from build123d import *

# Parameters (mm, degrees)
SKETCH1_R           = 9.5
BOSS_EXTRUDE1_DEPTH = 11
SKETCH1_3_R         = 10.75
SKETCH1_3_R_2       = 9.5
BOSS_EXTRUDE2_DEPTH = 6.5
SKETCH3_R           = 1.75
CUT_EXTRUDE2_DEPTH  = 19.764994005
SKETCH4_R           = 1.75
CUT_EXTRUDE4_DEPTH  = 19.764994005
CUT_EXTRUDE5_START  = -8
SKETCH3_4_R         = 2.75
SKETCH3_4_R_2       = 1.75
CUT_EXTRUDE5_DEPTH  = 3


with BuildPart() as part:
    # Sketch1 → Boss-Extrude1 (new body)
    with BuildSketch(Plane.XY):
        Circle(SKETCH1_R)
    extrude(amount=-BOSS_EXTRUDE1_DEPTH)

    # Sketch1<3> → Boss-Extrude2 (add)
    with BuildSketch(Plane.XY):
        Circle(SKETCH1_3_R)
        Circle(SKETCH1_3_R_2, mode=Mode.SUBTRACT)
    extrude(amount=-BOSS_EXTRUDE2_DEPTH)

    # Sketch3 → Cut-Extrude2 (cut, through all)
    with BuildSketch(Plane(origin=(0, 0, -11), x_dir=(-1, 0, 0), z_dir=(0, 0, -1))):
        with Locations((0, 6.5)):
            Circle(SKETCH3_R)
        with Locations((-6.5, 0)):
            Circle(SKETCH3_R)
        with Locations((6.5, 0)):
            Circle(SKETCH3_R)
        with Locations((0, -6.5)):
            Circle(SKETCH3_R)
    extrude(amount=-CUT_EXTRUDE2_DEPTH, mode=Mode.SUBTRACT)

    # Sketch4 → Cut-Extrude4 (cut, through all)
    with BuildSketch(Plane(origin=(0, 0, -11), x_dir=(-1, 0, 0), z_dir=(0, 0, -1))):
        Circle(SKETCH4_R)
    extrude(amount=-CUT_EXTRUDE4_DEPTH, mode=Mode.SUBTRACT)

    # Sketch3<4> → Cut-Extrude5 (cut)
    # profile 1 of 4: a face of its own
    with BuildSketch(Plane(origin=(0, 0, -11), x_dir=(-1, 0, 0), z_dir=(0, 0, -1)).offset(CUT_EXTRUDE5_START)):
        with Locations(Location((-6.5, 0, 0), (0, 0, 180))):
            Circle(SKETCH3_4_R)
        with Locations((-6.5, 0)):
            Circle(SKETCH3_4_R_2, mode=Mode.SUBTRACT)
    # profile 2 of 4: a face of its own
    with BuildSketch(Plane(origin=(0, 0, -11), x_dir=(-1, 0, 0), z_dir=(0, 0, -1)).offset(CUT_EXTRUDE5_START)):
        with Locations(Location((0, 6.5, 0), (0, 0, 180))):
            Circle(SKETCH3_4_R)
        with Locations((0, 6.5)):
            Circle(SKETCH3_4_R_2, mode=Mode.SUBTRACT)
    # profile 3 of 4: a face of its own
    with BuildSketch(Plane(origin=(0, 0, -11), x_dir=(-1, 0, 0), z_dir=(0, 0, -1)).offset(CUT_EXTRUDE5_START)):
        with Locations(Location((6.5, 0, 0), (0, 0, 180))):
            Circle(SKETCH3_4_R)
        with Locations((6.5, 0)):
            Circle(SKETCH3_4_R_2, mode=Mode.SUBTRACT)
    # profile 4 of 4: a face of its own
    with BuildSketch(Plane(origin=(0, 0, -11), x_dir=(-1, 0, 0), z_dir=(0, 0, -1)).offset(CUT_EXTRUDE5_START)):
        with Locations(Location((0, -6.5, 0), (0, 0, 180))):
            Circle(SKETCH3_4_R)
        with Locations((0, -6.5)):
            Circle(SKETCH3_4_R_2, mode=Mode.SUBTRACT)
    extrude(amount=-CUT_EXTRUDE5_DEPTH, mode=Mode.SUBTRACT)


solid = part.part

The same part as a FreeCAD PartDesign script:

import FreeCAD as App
import Part
import Sketcher
from FreeCAD import Vector
Q = App.Units.Quantity

doc = App.newDocument("Part")
params = doc.addObject("Spreadsheet::Sheet", "Params")
for row, (alias, value) in enumerate([
    ("sketch1_diameter", "19 mm"),
    ("pad1_length", "11 mm"),
    ("sketch2_diameter", "19 mm"),
    ("sketch2_diameter2", "21.5 mm"),
    ("pad2_length", "6.5 mm"),
    ("sketch3_diameter", "3.5 mm"),
    ("sketch4_diameter", "3.5 mm"),
    ("sketch5_diameter", "5.5 mm"),
    ("sketch5_diameter2", "3.5 mm"),
    ("pocket3_length", "3 mm"),
], start=1):
    params.set(f"A{row}", alias)
    params.set(f"B{row}", "=" + value)
    params.setAlias(f"B{row}", alias)

body = doc.addObject("PartDesign::Body", "Body")

sketch1 = body.newObject("Sketcher::SketchObject", "Sketch")
sketch1.AttachmentSupport = (doc.getObject("XY_Plane"), [""])
sketch1.MapMode = "FlatFace"
sketch1.addGeometry(Part.Circle(Vector(0, 0, 0), Vector(0, 0, 1), 10), False)
sketch1.addConstraint([
    Sketcher.Constraint("Coincident", 0, 3, -1, 1),
    Sketcher.Constraint("Diameter", 0, Q("19 mm")),
])
sketch1.setExpression("Constraints[1]", "Params.sketch1_diameter")
pad1 = body.newObject("PartDesign::Pad", "Pad")
pad1.Profile = sketch1
pad1.setExpression("Length", "Params.pad1_length")
pad1.Reversed = True

sketch2 = body.newObject("Sketcher::SketchObject", "Sketch001")
sketch2.AttachmentSupport = (doc.getObject("XY_Plane"), [""])
sketch2.MapMode = "FlatFace"
sketch2.addGeometry([
    Part.Circle(Vector(0, 0, 0), Vector(0, 0, 1), 11),
    Part.Circle(Vector(0, 0, 0), Vector(0, 0, 1), 10),
], False)
sketch2.addConstraint([
    Sketcher.Constraint("Coincident", 0, 3, -1, 1),
    Sketcher.Constraint("Coincident", 1, 3, -1, 1),
    Sketcher.Constraint("Diameter", 1, Q("19 mm")),
    Sketcher.Constraint("Diameter", 0, Q("21.5 mm")),
])
sketch2.setExpression("Constraints[2]", "Params.sketch2_diameter")
sketch2.setExpression("Constraints[3]", "Params.sketch2_diameter2")
pad2 = body.newObject("PartDesign::Pad", "Pad001")
pad2.Profile = sketch2
pad2.setExpression("Length", "Params.pad2_length")
pad2.Reversed = True

sketch3 = body.newObject("Sketcher::SketchObject", "Sketch002")
sketch3.AttachmentSupport = (doc.getObject("XY_Plane"), [""])
sketch3.MapMode = "FlatFace"
sketch3.AttachmentOffset = App.Placement(Vector(0, 0, -11), App.Rotation())
sketch3.addGeometry([
    Part.Circle(Vector(0, 6.5, 0), Vector(0, 0, 1), 1.8),
    Part.Circle(Vector(6.5, 0, 0), Vector(0, 0, 1), 1.8),
    Part.Circle(Vector(-6.5, 0, 0), Vector(0, 0, 1), 1.8),
    Part.Circle(Vector(0, -6.5, 0), Vector(0, 0, 1), 1.8),
], False)
sketch3.addConstraint([
    Sketcher.Constraint("Equal", 0, 1),
    Sketcher.Constraint("Equal", 1, 2),
    Sketcher.Constraint("Equal", 2, 3),
    Sketcher.Constraint("Symmetric", 1, 3, 2, 3, -1, 1),
    Sketcher.Constraint("Symmetric", 0, 3, 3, 3, -1, 1),
    Sketcher.Constraint("PointOnObject", 0, 3, -2),
    Sketcher.Constraint("PointOnObject", 1, 3, -1),
    Sketcher.Constraint("Diameter", 0, Q("3.5 mm")),
    Sketcher.Constraint("DistanceX", 2, 3, 1, 3, Q("13 mm")),
    Sketcher.Constraint("DistanceY", 3, 3, 0, 3, Q("13 mm")),
])
sketch3.setExpression("Constraints[7]", "Params.sketch3_diameter")
pocket1 = body.newObject("PartDesign::Pocket", "Pocket")
pocket1.Profile = sketch3
pocket1.Type = "ThroughAll"
pocket1.Reversed = True

sketch4 = body.newObject("Sketcher::SketchObject", "Sketch003")
sketch4.AttachmentSupport = (doc.getObject("XY_Plane"), [""])
sketch4.MapMode = "FlatFace"
sketch4.AttachmentOffset = App.Placement(Vector(0, 0, -11), App.Rotation())
sketch4.addGeometry(Part.Circle(Vector(0, 0, 0), Vector(0, 0, 1), 1.8), False)
sketch4.addConstraint([
    Sketcher.Constraint("Coincident", 0, 3, -1, 1),
    Sketcher.Constraint("Diameter", 0, Q("3.5 mm")),
])
sketch4.setExpression("Constraints[1]", "Params.sketch4_diameter")
pocket2 = body.newObject("PartDesign::Pocket", "Pocket001")
pocket2.Profile = sketch4
pocket2.Type = "ThroughAll"
pocket2.Reversed = True

sketch5 = body.newObject("Sketcher::SketchObject", "Sketch004")
sketch5.AttachmentSupport = (doc.getObject("XY_Plane"), [""])
sketch5.MapMode = "FlatFace"
sketch5.AttachmentOffset = App.Placement(Vector(0, 0, -3), App.Rotation())
sketch5.addGeometry([
    Part.Circle(Vector(6.5, 0, 0), Vector(0, 0, 1), 2.8),
    Part.Circle(Vector(6.5, 0, 0), Vector(0, 0, 1), 1.8),
    Part.Circle(Vector(0, 6.5, 0), Vector(0, 0, 1), 2.8),
    Part.Circle(Vector(0, 6.5, 0), Vector(0, 0, 1), 1.8),
    Part.Circle(Vector(-6.5, 0, 0), Vector(0, 0, 1), 2.8),
    Part.Circle(Vector(-6.5, 0, 0), Vector(0, 0, 1), 1.8),
    Part.Circle(Vector(0, -6.5, 0), Vector(0, 0, 1), 2.8),
    Part.Circle(Vector(0, -6.5, 0), Vector(0, 0, 1), 1.8),
], False)
sketch5.addConstraint([
    Sketcher.Constraint("Coincident", 1, 3, 0, 3),
    Sketcher.Constraint("Coincident", 3, 3, 2, 3),
    Sketcher.Constraint("Coincident", 5, 3, 4, 3),
    Sketcher.Constraint("Coincident", 7, 3, 6, 3),
    Sketcher.Constraint("Equal", 0, 2),
    Sketcher.Constraint("Equal", 1, 3),
    Sketcher.Constraint("Equal", 2, 4),
    Sketcher.Constraint("Equal", 3, 5),
    Sketcher.Constraint("Equal", 4, 6),
    Sketcher.Constraint("Equal", 5, 7),
    Sketcher.Constraint("Symmetric", 0, 3, 4, 3, -1, 1),
    Sketcher.Constraint("Symmetric", 2, 3, 6, 3, -1, 1),
    Sketcher.Constraint("PointOnObject", 0, 3, -1),
    Sketcher.Constraint("PointOnObject", 2, 3, -2),
    Sketcher.Constraint("Diameter", 0, Q("5.5 mm")),
    Sketcher.Constraint("Diameter", 1, Q("3.5 mm")),
    Sketcher.Constraint("DistanceX", 4, 3, 0, 3, Q("13 mm")),
    Sketcher.Constraint("DistanceY", 6, 3, 2, 3, Q("13 mm")),
])
sketch5.setExpression("Constraints[14]", "Params.sketch5_diameter")
sketch5.setExpression("Constraints[15]", "Params.sketch5_diameter2")
pocket3 = body.newObject("PartDesign::Pocket", "Pocket002")
pocket3.Profile = sketch5
pocket3.setExpression("Length", "Params.pocket3_length")
pocket3.Reversed = True

doc.recompute()
